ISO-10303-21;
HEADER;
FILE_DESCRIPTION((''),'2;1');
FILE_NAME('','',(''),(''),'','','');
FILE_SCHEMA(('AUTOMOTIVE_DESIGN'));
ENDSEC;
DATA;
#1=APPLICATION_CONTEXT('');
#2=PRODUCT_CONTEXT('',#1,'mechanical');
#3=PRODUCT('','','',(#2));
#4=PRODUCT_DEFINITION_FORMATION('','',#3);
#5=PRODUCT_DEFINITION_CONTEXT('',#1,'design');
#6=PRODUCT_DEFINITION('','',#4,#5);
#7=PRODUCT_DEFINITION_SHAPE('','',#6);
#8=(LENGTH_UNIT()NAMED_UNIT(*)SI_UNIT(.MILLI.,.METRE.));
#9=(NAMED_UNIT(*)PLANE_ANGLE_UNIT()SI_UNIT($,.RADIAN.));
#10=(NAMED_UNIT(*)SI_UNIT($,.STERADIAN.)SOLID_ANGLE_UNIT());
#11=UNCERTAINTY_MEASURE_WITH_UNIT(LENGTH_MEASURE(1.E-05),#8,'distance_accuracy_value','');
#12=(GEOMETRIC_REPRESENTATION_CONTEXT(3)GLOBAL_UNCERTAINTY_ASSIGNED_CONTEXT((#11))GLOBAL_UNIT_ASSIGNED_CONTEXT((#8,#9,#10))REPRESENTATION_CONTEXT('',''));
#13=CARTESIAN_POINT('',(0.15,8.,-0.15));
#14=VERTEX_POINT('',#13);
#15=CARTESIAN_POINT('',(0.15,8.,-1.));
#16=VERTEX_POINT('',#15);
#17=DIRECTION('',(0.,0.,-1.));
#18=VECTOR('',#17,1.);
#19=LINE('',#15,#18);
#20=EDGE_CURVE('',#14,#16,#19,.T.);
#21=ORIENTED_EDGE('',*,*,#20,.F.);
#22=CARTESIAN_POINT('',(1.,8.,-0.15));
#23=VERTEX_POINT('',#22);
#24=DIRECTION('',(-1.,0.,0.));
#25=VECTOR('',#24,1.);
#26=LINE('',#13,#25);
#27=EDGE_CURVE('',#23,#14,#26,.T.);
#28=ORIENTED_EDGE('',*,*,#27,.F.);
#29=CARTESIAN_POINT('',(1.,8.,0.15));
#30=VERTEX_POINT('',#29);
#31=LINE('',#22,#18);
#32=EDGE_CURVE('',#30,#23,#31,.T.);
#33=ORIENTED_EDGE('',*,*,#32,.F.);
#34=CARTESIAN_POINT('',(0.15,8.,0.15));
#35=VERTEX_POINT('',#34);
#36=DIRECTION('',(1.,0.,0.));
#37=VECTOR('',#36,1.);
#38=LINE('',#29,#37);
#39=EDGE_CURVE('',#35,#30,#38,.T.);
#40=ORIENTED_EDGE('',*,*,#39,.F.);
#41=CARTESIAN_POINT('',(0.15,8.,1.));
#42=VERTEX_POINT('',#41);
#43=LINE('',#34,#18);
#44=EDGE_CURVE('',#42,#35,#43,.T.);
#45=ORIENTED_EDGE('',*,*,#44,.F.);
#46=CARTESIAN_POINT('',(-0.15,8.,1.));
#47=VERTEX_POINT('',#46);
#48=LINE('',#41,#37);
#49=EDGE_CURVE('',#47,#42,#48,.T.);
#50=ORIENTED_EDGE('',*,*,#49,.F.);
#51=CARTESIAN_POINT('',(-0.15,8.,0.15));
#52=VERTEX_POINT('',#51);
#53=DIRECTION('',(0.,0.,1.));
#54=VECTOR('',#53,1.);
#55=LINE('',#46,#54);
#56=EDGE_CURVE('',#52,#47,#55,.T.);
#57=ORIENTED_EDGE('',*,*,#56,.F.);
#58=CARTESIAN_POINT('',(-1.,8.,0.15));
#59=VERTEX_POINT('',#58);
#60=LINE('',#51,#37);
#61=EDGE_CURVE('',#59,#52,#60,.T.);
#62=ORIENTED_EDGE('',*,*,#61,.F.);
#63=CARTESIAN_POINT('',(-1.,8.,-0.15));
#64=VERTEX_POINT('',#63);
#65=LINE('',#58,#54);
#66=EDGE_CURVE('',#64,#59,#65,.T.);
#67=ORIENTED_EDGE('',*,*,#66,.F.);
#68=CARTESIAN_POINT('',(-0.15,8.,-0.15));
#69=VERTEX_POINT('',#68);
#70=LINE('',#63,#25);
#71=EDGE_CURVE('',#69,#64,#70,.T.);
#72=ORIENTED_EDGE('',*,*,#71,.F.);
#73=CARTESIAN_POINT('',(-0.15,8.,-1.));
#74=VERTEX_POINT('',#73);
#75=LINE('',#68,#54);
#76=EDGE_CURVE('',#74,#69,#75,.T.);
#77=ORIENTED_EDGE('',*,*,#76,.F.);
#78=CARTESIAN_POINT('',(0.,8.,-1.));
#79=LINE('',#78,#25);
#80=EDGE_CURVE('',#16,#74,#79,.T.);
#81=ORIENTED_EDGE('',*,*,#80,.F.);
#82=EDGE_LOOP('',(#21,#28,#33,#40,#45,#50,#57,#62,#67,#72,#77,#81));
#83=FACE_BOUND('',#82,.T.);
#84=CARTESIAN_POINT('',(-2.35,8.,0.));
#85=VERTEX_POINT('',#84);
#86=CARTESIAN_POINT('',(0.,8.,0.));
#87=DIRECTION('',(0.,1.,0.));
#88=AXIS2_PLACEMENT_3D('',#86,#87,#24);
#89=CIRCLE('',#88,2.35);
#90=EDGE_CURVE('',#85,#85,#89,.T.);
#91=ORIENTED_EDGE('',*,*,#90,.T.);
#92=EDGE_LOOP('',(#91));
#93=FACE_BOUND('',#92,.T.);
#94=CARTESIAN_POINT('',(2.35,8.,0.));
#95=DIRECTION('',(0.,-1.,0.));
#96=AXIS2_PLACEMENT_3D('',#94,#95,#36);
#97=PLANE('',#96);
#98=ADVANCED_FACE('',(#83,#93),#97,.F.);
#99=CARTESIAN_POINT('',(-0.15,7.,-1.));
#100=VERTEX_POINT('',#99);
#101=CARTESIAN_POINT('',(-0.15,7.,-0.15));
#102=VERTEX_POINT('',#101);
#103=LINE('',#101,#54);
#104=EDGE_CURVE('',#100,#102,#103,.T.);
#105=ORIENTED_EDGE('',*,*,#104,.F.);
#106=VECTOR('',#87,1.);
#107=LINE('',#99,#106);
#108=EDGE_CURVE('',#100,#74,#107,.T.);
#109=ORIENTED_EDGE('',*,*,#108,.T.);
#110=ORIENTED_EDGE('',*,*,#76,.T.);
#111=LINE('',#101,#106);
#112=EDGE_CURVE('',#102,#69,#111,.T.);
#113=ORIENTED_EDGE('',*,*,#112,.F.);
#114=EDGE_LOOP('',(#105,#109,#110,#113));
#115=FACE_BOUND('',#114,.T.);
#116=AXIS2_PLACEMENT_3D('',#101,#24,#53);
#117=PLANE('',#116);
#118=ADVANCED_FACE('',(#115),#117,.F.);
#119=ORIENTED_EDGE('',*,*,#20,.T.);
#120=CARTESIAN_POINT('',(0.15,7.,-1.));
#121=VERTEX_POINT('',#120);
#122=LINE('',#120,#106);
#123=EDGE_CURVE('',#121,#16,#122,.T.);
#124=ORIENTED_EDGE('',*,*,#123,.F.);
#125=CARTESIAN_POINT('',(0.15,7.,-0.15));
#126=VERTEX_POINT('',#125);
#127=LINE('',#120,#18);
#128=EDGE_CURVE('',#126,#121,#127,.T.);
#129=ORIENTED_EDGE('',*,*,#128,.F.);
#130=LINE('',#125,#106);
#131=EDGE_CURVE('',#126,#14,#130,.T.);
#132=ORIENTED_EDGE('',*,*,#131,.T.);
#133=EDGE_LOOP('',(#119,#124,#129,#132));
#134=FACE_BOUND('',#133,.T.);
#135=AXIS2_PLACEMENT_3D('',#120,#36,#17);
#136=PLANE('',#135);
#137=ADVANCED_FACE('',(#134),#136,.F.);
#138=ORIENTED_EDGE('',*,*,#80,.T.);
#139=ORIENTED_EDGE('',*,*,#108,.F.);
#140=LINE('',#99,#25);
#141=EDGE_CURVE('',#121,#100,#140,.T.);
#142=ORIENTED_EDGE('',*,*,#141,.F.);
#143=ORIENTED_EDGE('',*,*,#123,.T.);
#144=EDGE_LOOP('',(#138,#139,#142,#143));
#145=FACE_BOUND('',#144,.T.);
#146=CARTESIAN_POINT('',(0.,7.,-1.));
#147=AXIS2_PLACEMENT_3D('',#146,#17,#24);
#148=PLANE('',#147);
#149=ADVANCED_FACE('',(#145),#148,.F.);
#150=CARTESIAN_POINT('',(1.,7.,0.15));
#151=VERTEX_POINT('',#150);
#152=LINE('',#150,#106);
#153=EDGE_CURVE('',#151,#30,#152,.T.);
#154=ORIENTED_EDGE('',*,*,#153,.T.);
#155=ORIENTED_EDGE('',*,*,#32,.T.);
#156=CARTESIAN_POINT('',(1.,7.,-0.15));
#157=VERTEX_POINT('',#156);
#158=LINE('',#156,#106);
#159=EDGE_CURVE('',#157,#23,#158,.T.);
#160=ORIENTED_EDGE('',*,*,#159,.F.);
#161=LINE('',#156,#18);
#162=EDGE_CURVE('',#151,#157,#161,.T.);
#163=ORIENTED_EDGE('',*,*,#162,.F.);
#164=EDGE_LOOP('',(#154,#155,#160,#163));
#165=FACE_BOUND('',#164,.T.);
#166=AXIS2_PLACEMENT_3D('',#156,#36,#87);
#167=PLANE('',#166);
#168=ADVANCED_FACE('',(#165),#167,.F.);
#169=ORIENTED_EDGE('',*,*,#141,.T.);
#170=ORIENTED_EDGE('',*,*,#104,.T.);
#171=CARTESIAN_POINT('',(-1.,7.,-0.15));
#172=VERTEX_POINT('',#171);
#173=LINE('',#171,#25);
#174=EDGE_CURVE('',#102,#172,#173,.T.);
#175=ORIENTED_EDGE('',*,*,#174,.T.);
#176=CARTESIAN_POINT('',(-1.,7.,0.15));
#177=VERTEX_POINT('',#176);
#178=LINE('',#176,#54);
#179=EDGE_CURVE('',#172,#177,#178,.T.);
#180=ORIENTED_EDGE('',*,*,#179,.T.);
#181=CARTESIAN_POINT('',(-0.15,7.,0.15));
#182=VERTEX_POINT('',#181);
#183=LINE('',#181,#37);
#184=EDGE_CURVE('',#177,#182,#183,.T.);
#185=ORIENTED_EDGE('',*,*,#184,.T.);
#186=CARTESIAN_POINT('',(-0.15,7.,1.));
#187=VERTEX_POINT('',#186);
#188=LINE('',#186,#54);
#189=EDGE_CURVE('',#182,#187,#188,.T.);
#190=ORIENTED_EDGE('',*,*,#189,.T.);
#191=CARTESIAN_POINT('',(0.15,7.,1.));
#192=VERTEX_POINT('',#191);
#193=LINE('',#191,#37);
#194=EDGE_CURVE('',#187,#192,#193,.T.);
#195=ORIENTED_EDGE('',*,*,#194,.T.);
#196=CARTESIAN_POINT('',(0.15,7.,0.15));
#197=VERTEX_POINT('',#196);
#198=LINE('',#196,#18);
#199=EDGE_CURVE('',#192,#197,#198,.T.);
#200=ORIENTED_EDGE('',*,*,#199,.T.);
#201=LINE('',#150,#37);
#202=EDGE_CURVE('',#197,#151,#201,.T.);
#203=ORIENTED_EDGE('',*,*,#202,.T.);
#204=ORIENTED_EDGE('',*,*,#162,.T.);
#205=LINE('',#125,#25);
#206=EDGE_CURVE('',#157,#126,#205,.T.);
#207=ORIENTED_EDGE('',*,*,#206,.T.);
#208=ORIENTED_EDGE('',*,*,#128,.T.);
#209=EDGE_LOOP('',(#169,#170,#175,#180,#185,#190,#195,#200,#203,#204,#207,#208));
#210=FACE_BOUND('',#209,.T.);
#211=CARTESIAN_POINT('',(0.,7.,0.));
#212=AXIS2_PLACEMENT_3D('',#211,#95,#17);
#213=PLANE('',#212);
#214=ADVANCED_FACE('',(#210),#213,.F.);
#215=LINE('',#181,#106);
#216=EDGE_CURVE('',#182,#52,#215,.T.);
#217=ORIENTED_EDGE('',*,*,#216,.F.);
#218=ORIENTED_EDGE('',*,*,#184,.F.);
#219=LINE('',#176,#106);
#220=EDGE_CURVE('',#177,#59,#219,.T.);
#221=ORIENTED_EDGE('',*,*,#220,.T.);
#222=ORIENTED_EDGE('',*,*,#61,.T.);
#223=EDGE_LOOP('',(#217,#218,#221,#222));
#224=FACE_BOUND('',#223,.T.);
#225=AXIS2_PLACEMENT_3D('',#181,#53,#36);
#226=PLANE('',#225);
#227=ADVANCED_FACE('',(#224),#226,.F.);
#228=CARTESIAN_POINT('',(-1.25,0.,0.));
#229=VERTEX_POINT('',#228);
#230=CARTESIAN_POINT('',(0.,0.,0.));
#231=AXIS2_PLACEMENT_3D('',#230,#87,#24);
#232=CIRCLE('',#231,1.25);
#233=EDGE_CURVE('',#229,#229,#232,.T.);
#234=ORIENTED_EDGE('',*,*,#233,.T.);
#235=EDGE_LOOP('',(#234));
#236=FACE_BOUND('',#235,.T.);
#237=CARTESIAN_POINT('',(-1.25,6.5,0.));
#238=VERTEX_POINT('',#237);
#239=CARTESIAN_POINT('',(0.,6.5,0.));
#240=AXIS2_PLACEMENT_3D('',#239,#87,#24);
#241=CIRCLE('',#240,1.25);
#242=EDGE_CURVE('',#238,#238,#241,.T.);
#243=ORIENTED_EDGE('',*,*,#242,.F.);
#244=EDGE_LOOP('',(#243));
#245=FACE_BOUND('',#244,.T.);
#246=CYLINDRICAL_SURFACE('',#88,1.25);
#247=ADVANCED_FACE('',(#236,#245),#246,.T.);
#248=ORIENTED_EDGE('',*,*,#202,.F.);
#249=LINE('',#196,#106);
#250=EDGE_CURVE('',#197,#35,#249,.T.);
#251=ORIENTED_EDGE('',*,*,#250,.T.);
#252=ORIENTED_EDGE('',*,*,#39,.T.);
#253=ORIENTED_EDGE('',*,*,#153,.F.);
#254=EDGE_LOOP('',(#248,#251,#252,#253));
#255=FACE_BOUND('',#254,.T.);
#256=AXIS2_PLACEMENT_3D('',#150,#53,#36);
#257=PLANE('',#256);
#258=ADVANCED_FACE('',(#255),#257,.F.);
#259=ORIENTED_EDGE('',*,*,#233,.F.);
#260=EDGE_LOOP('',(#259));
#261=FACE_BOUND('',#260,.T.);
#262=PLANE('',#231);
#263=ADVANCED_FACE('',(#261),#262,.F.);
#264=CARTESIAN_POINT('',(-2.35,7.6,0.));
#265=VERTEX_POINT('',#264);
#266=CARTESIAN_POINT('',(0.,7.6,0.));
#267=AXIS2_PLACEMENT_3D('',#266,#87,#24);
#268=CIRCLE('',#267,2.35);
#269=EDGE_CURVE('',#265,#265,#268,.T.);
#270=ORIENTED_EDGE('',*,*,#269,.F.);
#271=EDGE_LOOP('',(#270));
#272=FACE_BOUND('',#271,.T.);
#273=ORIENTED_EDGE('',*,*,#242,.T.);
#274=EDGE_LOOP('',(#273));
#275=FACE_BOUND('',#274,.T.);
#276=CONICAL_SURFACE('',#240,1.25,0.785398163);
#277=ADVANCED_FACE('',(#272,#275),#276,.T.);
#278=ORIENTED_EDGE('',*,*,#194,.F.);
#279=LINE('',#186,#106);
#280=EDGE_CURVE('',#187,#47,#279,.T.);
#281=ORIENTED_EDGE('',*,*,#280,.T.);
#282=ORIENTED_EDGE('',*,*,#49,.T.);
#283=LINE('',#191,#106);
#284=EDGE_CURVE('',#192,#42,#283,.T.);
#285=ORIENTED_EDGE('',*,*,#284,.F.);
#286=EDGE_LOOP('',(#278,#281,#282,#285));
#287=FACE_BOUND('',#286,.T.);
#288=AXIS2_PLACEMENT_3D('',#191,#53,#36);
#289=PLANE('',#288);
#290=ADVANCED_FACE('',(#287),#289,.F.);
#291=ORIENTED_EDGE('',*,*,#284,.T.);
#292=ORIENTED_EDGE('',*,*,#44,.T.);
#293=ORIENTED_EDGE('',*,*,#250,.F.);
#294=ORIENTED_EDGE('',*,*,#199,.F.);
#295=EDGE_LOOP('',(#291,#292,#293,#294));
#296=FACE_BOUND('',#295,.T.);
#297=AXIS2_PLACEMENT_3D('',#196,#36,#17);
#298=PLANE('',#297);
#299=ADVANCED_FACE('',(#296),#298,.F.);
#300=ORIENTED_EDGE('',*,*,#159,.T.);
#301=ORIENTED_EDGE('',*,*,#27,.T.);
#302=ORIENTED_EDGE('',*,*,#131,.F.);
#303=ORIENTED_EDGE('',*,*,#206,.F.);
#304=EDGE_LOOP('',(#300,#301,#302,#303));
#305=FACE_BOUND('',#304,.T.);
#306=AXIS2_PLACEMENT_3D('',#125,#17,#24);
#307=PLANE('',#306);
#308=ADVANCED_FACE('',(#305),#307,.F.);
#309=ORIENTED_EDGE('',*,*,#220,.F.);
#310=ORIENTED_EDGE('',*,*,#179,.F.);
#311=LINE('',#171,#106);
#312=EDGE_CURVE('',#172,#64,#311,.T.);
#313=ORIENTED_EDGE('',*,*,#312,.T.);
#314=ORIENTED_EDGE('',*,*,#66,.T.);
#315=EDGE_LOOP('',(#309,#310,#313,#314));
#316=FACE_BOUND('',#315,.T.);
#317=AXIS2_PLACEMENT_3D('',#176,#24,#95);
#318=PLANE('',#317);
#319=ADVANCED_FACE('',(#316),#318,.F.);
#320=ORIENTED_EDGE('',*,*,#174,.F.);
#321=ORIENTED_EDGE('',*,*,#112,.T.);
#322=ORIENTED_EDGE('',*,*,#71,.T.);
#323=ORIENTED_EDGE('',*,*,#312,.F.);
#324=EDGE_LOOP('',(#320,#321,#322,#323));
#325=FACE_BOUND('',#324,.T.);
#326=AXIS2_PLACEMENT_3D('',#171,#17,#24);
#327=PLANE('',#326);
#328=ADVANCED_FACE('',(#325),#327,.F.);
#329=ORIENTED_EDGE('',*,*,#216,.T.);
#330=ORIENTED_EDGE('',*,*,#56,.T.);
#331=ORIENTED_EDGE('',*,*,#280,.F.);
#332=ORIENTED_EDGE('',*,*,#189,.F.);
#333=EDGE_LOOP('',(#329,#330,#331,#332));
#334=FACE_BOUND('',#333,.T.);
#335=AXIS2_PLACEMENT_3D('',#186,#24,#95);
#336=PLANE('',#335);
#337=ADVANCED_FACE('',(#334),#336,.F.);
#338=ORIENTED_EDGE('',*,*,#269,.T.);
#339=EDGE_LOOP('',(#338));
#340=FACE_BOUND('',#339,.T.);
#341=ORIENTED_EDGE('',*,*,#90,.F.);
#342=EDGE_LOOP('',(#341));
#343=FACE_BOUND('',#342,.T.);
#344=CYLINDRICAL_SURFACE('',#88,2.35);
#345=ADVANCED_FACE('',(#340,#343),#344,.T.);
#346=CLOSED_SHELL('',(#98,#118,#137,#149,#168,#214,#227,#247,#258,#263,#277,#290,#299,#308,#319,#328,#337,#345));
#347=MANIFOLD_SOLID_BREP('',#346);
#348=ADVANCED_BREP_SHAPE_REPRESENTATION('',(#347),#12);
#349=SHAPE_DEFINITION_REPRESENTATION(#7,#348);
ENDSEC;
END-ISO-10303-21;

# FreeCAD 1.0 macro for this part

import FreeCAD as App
import Part
import Sketcher
from FreeCAD import Vector
Q = App.Units.Quantity


def add_polygon(sketch, points):
    """Adds a closed chain of lines whose ends are joined by coincident constraints."""
    first, n = sketch.GeometryCount, len(points)
    for a, b in zip(points, points[1:] + points[:1]):
        sketch.addGeometry(Part.LineSegment(App.Vector(*a, 0), App.Vector(*b, 0)), False)
    for i in range(n):
        sketch.addConstraint(Sketcher.Constraint("Coincident", first + i, 2, first + (i + 1) % n, 1))

doc = App.newDocument("Part")
body = doc.addObject("PartDesign::Body", "Body")

sketch1 = body.newObject("Sketcher::SketchObject", "Sketch")
sketch1.AttachmentSupport = (doc.getObject("XY_Plane"), [""])
sketch1.MapMode = "FlatFace"
add_polygon(sketch1, [(0, 0), (1.25, 0), (1.25, 6.5), (2.35, 7.6), (2.35, 8), (0, 8)])
sketch1.addConstraint(Sketcher.Constraint("Horizontal", 0))
sketch1.addConstraint(Sketcher.Constraint("Vertical", 1))
sketch1.addConstraint(Sketcher.Constraint("Vertical", 3))
sketch1.addConstraint(Sketcher.Constraint("Horizontal", 4))
sketch1.addConstraint(Sketcher.Constraint("Vertical", 5))
sketch1.addConstraint(Sketcher.Constraint("Coincident", 5, 2, -1, 1))
sketch1.addConstraint(Sketcher.Constraint("DistanceY", 5, 2, 5, 1, 8.0))
sketch1.addConstraint(Sketcher.Constraint("Angle", 2, Q("45 deg")))
sketch1.addConstraint(Sketcher.Constraint("DistanceY", 1, 1, 1, 2, 6.5))
sketch1.addConstraint(Sketcher.Constraint("DistanceY", 3, 1, 3, 2, 0.4))
sketch1.addConstraint(Sketcher.Constraint("DistanceX", 0, 1, 0, 2, 1.25))
revolution = body.newObject("PartDesign::Revolution", "Revolution")
revolution.Profile = sketch1
revolution.ReferenceAxis = (sketch1, ["V_Axis"])
revolution.Angle = 360

sketch2 = body.newObject("Sketcher::SketchObject", "Sketch001")
sketch2.AttachmentSupport = (doc.getObject("XZ_Plane"), [""])
sketch2.MapMode = "FlatFace"
sketch2.AttachmentOffset = App.Placement(Vector(0, 0, -8), App.Rotation())
add_polygon(sketch2, [(0.15, -1), (-0.15, -1), (-0.15, -0.15), (-1, -0.15), (-1, 0.15), (-0.15, 0.15), (-0.15, 1), (0.15, 1), (0.15, 0.15), (1, 0.15), (1, -0.15), (0.15, -0.15)])
sketch2.addConstraint(Sketcher.Constraint("Horizontal", 0))
sketch2.addConstraint(Sketcher.Constraint("Vertical", 1))
sketch2.addConstraint(Sketcher.Constraint("Horizontal", 2))
sketch2.addConstraint(Sketcher.Constraint("Vertical", 3))
sketch2.addConstraint(Sketcher.Constraint("Horizontal", 4))
sketch2.addConstraint(Sketcher.Constraint("Vertical", 5))
sketch2.addConstraint(Sketcher.Constraint("Horizontal", 6))
sketch2.addConstraint(Sketcher.Constraint("Vertical", 7))
sketch2.addConstraint(Sketcher.Constraint("Horizontal", 8))
sketch2.addConstraint(Sketcher.Constraint("Vertical", 9))
sketch2.addConstraint(Sketcher.Constraint("Horizontal", 10))
sketch2.addConstraint(Sketcher.Constraint("Vertical", 11))
sketch2.addConstraint(Sketcher.Constraint("Symmetric", 0, 2, 6, 2, -1, 1))
sketch2.addConstraint(Sketcher.Constraint("Symmetric", 2, 2, 8, 2, -1, 1))
sketch2.addConstraint(Sketcher.Constraint("Symmetric", 4, 2, 10, 2, -1, 1))
sketch2.addConstraint(Sketcher.Constraint("Symmetric", 4, 2, 7, 2, -2))
sketch2.addConstraint(Sketcher.Constraint("Equal", 10, 1))
sketch2.addConstraint(Sketcher.Constraint("Equal", 6, 3))
sketch2.addConstraint(Sketcher.Constraint("DistanceX", 0, 2, 0, 1, 0.3))
sketch2.addConstraint(Sketcher.Constraint("DistanceY", 0, 2, -1, 1, 1.0))
pocket1 = body.newObject("PartDesign::Pocket", "Pocket")
pocket1.Profile = sketch2
pocket1.Length = 1
pocket1.Reversed = True

doc.recompute()
